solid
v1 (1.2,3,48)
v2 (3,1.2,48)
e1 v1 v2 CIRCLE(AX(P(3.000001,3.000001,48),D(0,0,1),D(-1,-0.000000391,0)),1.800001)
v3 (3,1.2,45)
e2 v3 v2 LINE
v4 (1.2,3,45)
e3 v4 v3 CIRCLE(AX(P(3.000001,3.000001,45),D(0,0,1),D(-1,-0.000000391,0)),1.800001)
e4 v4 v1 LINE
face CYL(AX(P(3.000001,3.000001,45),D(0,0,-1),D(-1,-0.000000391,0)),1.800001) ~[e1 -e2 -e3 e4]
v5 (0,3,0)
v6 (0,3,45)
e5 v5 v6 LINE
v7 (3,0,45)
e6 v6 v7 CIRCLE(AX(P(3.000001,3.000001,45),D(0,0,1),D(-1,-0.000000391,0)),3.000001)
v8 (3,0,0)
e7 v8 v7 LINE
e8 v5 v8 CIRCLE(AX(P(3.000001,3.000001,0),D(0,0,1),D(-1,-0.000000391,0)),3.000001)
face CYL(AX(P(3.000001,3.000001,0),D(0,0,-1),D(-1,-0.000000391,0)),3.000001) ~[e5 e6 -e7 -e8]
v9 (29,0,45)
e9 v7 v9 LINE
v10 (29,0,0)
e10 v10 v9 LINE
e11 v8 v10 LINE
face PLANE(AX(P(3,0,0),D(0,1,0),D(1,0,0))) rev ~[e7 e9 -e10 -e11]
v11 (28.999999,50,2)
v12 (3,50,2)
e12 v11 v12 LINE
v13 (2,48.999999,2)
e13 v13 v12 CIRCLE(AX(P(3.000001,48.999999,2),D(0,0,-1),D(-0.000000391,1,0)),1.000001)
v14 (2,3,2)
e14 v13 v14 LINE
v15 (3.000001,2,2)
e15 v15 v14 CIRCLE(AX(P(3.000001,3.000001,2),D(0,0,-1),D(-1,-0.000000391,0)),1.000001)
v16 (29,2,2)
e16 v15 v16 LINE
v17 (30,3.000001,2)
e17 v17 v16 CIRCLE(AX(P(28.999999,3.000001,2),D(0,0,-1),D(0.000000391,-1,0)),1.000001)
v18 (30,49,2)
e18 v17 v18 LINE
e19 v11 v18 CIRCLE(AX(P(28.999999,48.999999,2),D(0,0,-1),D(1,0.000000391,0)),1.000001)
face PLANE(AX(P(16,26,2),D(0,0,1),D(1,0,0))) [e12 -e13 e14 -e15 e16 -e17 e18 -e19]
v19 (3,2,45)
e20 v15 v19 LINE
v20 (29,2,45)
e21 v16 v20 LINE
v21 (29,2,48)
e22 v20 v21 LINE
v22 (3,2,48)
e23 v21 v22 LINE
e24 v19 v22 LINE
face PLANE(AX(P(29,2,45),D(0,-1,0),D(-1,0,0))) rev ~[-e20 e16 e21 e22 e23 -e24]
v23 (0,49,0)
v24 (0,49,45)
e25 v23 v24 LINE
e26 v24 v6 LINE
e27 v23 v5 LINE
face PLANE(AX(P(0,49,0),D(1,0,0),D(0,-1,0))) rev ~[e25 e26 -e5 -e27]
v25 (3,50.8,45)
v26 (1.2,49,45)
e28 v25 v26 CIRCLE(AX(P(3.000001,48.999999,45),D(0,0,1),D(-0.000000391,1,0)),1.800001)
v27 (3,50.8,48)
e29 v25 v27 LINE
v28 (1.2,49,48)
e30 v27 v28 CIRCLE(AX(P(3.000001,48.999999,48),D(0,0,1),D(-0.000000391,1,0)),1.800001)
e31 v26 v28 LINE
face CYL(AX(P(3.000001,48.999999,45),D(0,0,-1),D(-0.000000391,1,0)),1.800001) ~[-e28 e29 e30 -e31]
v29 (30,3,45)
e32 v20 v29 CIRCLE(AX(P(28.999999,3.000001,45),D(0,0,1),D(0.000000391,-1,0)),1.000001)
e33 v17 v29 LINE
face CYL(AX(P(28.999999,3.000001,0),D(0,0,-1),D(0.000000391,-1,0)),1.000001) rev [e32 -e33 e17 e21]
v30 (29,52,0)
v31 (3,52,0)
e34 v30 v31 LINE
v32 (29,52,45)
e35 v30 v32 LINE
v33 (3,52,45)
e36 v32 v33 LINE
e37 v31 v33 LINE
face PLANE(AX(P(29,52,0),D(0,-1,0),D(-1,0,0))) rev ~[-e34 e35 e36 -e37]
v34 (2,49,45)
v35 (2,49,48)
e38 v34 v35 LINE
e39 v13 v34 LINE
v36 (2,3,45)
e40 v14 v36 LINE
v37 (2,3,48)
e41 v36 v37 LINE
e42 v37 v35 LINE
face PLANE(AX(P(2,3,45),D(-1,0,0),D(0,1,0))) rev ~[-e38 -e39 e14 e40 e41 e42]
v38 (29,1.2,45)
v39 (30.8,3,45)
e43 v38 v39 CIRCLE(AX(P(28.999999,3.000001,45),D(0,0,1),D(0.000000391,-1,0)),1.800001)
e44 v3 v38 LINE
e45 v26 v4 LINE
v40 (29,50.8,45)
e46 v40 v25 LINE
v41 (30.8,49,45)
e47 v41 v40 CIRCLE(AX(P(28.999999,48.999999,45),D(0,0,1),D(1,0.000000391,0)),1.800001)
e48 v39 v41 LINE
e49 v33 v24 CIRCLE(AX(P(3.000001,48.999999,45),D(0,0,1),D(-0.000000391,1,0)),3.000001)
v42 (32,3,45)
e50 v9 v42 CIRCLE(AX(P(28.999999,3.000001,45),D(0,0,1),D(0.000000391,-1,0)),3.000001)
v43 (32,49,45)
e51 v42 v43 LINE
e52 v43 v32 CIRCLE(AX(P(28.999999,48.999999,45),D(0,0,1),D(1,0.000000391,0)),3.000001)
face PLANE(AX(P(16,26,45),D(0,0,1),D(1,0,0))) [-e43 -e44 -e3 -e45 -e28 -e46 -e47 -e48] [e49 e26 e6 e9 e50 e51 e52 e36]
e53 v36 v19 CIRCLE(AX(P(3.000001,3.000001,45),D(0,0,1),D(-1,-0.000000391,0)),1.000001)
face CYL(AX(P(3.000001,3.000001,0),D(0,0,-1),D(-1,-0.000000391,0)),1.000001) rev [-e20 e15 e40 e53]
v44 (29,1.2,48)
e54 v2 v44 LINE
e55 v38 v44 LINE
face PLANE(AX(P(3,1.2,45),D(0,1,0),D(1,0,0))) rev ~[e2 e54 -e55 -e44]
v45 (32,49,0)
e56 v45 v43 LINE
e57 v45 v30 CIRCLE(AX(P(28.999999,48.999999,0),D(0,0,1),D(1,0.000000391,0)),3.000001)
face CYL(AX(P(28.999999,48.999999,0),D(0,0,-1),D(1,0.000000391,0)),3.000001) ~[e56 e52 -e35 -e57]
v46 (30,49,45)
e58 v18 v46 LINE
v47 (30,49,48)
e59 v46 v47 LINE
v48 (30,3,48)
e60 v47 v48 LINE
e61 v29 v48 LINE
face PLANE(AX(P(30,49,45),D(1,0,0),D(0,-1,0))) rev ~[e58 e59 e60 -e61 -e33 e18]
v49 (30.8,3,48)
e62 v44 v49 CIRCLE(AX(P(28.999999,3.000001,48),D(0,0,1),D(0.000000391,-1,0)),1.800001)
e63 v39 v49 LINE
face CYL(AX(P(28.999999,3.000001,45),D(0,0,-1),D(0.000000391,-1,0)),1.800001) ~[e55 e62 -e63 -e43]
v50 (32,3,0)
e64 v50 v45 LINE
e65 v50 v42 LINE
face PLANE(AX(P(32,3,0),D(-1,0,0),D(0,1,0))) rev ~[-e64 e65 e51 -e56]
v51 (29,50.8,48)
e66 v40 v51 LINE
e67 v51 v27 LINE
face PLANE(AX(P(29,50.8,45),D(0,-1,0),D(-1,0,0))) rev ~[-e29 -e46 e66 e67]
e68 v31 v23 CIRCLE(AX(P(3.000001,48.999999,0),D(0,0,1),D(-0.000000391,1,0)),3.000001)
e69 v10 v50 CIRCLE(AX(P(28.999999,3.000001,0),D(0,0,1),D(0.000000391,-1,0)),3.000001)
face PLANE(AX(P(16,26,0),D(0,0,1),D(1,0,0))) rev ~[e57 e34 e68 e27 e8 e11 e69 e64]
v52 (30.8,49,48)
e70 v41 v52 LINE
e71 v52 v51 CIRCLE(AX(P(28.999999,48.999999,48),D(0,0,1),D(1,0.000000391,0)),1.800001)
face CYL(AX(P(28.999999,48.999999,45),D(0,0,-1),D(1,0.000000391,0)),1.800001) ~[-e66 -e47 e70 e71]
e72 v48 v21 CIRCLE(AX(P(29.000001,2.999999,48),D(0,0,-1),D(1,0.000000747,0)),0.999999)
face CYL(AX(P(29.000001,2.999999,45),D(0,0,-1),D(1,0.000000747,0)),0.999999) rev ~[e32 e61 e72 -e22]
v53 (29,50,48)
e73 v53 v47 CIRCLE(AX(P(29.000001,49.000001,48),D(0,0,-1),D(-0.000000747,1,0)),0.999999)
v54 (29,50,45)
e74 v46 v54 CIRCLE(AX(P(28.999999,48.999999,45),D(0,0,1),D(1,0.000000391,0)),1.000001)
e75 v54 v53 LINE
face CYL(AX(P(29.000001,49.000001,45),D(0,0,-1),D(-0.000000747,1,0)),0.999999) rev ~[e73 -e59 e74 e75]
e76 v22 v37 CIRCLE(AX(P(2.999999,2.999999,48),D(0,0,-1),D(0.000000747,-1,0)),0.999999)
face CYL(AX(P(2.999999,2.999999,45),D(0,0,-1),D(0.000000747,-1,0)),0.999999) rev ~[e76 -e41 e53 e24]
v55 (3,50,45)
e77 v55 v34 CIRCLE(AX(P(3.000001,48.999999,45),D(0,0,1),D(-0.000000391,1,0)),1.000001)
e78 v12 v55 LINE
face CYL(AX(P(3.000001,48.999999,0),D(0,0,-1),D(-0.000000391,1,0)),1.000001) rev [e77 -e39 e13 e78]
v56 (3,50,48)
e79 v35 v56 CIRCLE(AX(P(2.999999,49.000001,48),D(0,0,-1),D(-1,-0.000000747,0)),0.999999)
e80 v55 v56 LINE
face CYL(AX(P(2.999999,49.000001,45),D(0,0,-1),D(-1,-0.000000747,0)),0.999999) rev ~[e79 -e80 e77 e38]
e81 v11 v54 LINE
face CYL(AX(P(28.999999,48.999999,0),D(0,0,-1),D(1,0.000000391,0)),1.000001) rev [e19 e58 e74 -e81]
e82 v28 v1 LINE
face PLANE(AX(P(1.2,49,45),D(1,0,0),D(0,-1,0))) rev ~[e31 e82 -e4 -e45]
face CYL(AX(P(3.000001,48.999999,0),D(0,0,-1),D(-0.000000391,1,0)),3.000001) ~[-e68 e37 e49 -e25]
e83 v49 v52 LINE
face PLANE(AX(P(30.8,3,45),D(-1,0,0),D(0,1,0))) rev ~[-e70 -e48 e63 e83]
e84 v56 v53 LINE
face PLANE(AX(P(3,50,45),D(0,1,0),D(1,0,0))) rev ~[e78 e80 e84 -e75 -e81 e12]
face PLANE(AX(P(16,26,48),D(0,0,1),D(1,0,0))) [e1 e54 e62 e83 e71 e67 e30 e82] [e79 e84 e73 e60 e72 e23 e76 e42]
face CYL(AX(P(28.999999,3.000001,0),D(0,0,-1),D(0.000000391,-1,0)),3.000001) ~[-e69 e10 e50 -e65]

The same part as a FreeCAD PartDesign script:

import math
import FreeCAD as App
import Part
import Sketcher


def faces_at(feature, points):
    """Names of the faces that lie closest to the given points."""
    faces = feature.Shape.Faces
    near = lambda p: min(range(len(faces)), key=lambda i: faces[i].distToShape(Part.Vertex(*p))[0])
    return sorted({f"Face{near(p) + 1}" for p in points})

doc = App.newDocument("Part")
body = doc.addObject("PartDesign::Body", "Body")

# Sketch on XY plane
sketch1 = body.newObject("Sketcher::SketchObject", "Sketch")
sketch1.AttachmentSupport = (doc.getObject("XY_Plane"), [""])
sketch1.MapMode = "FlatFace"
sketch1.addGeometry(Part.ArcOfCircle(Part.Circle(App.Vector(3.000001, 3.000001, 0), App.Vector(0, 0, 1), 3.000001), math.radians(-179.999978), math.radians(-90.000022)), False)
sketch1.addGeometry(Part.LineSegment(App.Vector(3, 0, 0), App.Vector(29, 0, 0)), False)
sketch1.addGeometry(Part.ArcOfCircle(Part.Circle(App.Vector(28.999999, 3.000001, 0), App.Vector(0, 0, 1), 3.000001), math.radians(-89.999978), math.radians(-0.000022)), False)
sketch1.addGeometry(Part.LineSegment(App.Vector(32, 3, 0), App.Vector(32, 49, 0)), False)
sketch1.addGeometry(Part.ArcOfCircle(Part.Circle(App.Vector(28.999999, 48.999999, 0), App.Vector(0, 0, 1), 3.000001), math.radians(0.000022), math.radians(89.999978)), False)
sketch1.addGeometry(Part.LineSegment(App.Vector(29, 52, 0), App.Vector(3, 52, 0)), False)
sketch1.addGeometry(Part.ArcOfCircle(Part.Circle(App.Vector(3.000001, 48.999999, 0), App.Vector(0, 0, 1), 3.000001), math.radians(90.000022), math.radians(179.999978)), False)
sketch1.addGeometry(Part.LineSegment(App.Vector(0, 49, 0), App.Vector(0, 3, 0)), False)
sketch1.addConstraint(Sketcher.Constraint("Tangent", 0, 2, 1, 1))
sketch1.addConstraint(Sketcher.Constraint("Tangent", 1, 2, 2, 1))
sketch1.addConstraint(Sketcher.Constraint("Tangent", 2, 2, 3, 1))
sketch1.addConstraint(Sketcher.Constraint("Tangent", 3, 2, 4, 1))
sketch1.addConstraint(Sketcher.Constraint("Tangent", 4, 2, 5, 1))
sketch1.addConstraint(Sketcher.Constraint("Tangent", 5, 2, 6, 1))
sketch1.addConstraint(Sketcher.Constraint("Tangent", 6, 2, 7, 1))
sketch1.addConstraint(Sketcher.Constraint("Tangent", 7, 2, 0, 1))
sketch1.addConstraint(Sketcher.Constraint("Horizontal", 1))
sketch1.addConstraint(Sketcher.Constraint("Vertical", 3))
sketch1.addConstraint(Sketcher.Constraint("Horizontal", 5))
sketch1.addConstraint(Sketcher.Constraint("Vertical", 7))
sketch1.addConstraint(Sketcher.Constraint("Equal", 0, 2))
sketch1.addConstraint(Sketcher.Constraint("Equal", 2, 4))
sketch1.addConstraint(Sketcher.Constraint("Equal", 4, 6))
sketch1.addConstraint(Sketcher.Constraint("PointOnObject", 0, 2, -1))
sketch1.addConstraint(Sketcher.Constraint("PointOnObject", 6, 2, -2))
sketch1.addConstraint(Sketcher.Constraint("Radius", 0, 3.000001))
sketch1.addConstraint(Sketcher.Constraint("DistanceX", 1, 1, 1, 2, 26.0))
sketch1.addConstraint(Sketcher.Constraint("DistanceY", 3, 1, 3, 2, 46.0))
pad1 = body.newObject("PartDesign::Pad", "Pad")
pad1.Profile = sketch1
pad1.Length = 45
doc.recompute()

thickness = body.newObject("PartDesign::Thickness", "Thickness")
thickness.Base = (pad1, faces_at(pad1, [(16, 26, 45)]))
thickness.Value = 2
thickness.Reversed = True
thickness.Join = "Arc"

# Sketch on XY plane
sketch2 = body.newObject("Sketcher::SketchObject", "Sketch001")
sketch2.AttachmentSupport = (doc.getObject("XY_Plane"), [""])
sketch2.MapMode = "FlatFace"
sketch2.AttachmentOffset = App.Placement(App.Vector(0, 0, 45), App.Rotation())
sketch2.addGeometry(Part.LineSegment(App.Vector(29, 50.8, 0), App.Vector(3, 50.8, 0)), False)
sketch2.addGeometry(Part.ArcOfCircle(Part.Circle(App.Vector(3.000001, 48.999999, 0), App.Vector(0, 0, 1), 1.800001), math.radians(90.000022), math.radians(179.999978)), False)
sketch2.addGeometry(Part.LineSegment(App.Vector(1.2, 49, 0), App.Vector(1.2, 3, 0)), False)
sketch2.addGeometry(Part.ArcOfCircle(Part.Circle(App.Vector(3.000001, 3.000001, 0), App.Vector(0, 0, 1), 1.800001), math.radians(-179.999978), math.radians(-90.000022)), False)
sketch2.addGeometry(Part.LineSegment(App.Vector(3, 1.2, 0), App.Vector(29, 1.2, 0)), False)
sketch2.addGeometry(Part.ArcOfCircle(Part.Circle(App.Vector(28.999999, 3.000001, 0), App.Vector(0, 0, 1), 1.800001), math.radians(-89.999978), math.radians(-0.000022)), False)
sketch2.addGeometry(Part.LineSegment(App.Vector(30.8, 3, 0), App.Vector(30.8, 49, 0)), False)
sketch2.addGeometry(Part.ArcOfCircle(Part.Circle(App.Vector(28.999999, 48.999999, 0), App.Vector(0, 0, 1), 1.800001), math.radians(0.000022), math.radians(89.999978)), False)
sketch2.addGeometry(Part.ArcOfCircle(Part.Circle(App.Vector(29.000001, 2.999999, 0), App.Vector(0, 0, 1), 0.999999), math.radians(-90.000043), math.radians(0.000043)), False)
sketch2.addGeometry(Part.LineSegment(App.Vector(29, 2, 0), App.Vector(3, 2, 0)), False)
sketch2.addGeometry(Part.ArcOfCircle(Part.Circle(App.Vector(2.999999, 2.999999, 0), App.Vector(0, 0, 1), 0.999999), math.radians(179.999957), math.radians(270.000043)), False)
sketch2.addGeometry(Part.LineSegment(App.Vector(2, 3, 0), App.Vector(2, 49, 0)), False)
sketch2.addGeometry(Part.ArcOfCircle(Part.Circle(App.Vector(2.999999, 49.000001, 0), App.Vector(0, 0, 1), 0.999999), math.radians(89.999957), math.radians(180.000043)), False)
sketch2.addGeometry(Part.LineSegment(App.Vector(3, 50, 0), App.Vector(29, 50, 0)), False)
sketch2.addGeometry(Part.ArcOfCircle(Part.Circle(App.Vector(29.000001, 49.000001, 0), App.Vector(0, 0, 1), 0.999999), math.radians(-0.000043), math.radians(90.000043)), False)
sketch2.addGeometry(Part.LineSegment(App.Vector(30, 49, 0), App.Vector(30, 3, 0)), False)
sketch2.addConstraint(Sketcher.Constraint("Tangent", 0, 2, 1, 1))
sketch2.addConstraint(Sketcher.Constraint("Tangent", 1, 2, 2, 1))
sketch2.addConstraint(Sketcher.Constraint("Tangent", 2, 2, 3, 1))
sketch2.addConstraint(Sketcher.Constraint("Tangent", 3, 2, 4, 1))
sketch2.addConstraint(Sketcher.Constraint("Tangent", 4, 2, 5, 1))
sketch2.addConstraint(Sketcher.Constraint("Tangent", 5, 2, 6, 1))
sketch2.addConstraint(Sketcher.Constraint("Tangent", 6, 2, 7, 1))
sketch2.addConstraint(Sketcher.Constraint("Tangent", 7, 2, 0, 1))
sketch2.addConstraint(Sketcher.Constraint("Tangent", 8, 1, 9, 1))
sketch2.addConstraint(Sketcher.Constraint("Tangent", 9, 2, 10, 2))
sketch2.addConstraint(Sketcher.Constraint("Tangent", 10, 1, 11, 1))
sketch2.addConstraint(Sketcher.Constraint("Tangent", 11, 2, 12, 2))
sketch2.addConstraint(Sketcher.Constraint("Tangent", 12, 1, 13, 1))
sketch2.addConstraint(Sketcher.Constraint("Tangent", 13, 2, 14, 2))
sketch2.addConstraint(Sketcher.Constraint("Tangent", 14, 1, 15, 1))
sketch2.addConstraint(Sketcher.Constraint("Tangent", 15, 2, 8, 2))
sketch2.addConstraint(Sketcher.Constraint("Horizontal", 0))
sketch2.addConstraint(Sketcher.Constraint("Vertical", 2))
sketch2.addConstraint(Sketcher.Constraint("Horizontal", 4))
sketch2.addConstraint(Sketcher.Constraint("Vertical", 6))
sketch2.addConstraint(Sketcher.Constraint("Horizontal", 9))
sketch2.addConstraint(Sketcher.Constraint("Vertical", 11))
sketch2.addConstraint(Sketcher.Constraint("Horizontal", 13))
sketch2.addConstraint(Sketcher.Constraint("Vertical", 15))
sketch2.addConstraint(Sketcher.Constraint("Coincident", 8, 3, 5, 3))
sketch2.addConstraint(Sketcher.Constraint("Coincident", 10, 3, 3, 3))
sketch2.addConstraint(Sketcher.Constraint("Coincident", 12, 3, 1, 3))
sketch2.addConstraint(Sketcher.Constraint("Equal", 1, 3))
sketch2.addConstraint(Sketcher.Constraint("Equal", 3, 5))
sketch2.addConstraint(Sketcher.Constraint("Equal", 5, 7))
sketch2.addConstraint(Sketcher.Constraint("Equal", 12, 14))
sketch2.addConstraint(Sketcher.Constraint("Radius", 8, 0.999999))
sketch2.addConstraint(Sketcher.Constraint("Radius", 1, 1.800001))
sketch2.addConstraint(Sketcher.Constraint("DistanceX", 0, 2, 0, 1, 26.0))
sketch2.addConstraint(Sketcher.Constraint("DistanceY", 2, 2, 2, 1, 46.0))
sketch2.addConstraint(Sketcher.Constraint("DistanceX", -1, 1, 1, 3, 3.000001))
sketch2.addConstraint(Sketcher.Constraint("DistanceY", -1, 1, 1, 3, 48.999999))
pad2 = body.newObject("PartDesign::Pad", "Pad001")
pad2.Profile = sketch2
pad2.Length = 3

doc.recompute()
